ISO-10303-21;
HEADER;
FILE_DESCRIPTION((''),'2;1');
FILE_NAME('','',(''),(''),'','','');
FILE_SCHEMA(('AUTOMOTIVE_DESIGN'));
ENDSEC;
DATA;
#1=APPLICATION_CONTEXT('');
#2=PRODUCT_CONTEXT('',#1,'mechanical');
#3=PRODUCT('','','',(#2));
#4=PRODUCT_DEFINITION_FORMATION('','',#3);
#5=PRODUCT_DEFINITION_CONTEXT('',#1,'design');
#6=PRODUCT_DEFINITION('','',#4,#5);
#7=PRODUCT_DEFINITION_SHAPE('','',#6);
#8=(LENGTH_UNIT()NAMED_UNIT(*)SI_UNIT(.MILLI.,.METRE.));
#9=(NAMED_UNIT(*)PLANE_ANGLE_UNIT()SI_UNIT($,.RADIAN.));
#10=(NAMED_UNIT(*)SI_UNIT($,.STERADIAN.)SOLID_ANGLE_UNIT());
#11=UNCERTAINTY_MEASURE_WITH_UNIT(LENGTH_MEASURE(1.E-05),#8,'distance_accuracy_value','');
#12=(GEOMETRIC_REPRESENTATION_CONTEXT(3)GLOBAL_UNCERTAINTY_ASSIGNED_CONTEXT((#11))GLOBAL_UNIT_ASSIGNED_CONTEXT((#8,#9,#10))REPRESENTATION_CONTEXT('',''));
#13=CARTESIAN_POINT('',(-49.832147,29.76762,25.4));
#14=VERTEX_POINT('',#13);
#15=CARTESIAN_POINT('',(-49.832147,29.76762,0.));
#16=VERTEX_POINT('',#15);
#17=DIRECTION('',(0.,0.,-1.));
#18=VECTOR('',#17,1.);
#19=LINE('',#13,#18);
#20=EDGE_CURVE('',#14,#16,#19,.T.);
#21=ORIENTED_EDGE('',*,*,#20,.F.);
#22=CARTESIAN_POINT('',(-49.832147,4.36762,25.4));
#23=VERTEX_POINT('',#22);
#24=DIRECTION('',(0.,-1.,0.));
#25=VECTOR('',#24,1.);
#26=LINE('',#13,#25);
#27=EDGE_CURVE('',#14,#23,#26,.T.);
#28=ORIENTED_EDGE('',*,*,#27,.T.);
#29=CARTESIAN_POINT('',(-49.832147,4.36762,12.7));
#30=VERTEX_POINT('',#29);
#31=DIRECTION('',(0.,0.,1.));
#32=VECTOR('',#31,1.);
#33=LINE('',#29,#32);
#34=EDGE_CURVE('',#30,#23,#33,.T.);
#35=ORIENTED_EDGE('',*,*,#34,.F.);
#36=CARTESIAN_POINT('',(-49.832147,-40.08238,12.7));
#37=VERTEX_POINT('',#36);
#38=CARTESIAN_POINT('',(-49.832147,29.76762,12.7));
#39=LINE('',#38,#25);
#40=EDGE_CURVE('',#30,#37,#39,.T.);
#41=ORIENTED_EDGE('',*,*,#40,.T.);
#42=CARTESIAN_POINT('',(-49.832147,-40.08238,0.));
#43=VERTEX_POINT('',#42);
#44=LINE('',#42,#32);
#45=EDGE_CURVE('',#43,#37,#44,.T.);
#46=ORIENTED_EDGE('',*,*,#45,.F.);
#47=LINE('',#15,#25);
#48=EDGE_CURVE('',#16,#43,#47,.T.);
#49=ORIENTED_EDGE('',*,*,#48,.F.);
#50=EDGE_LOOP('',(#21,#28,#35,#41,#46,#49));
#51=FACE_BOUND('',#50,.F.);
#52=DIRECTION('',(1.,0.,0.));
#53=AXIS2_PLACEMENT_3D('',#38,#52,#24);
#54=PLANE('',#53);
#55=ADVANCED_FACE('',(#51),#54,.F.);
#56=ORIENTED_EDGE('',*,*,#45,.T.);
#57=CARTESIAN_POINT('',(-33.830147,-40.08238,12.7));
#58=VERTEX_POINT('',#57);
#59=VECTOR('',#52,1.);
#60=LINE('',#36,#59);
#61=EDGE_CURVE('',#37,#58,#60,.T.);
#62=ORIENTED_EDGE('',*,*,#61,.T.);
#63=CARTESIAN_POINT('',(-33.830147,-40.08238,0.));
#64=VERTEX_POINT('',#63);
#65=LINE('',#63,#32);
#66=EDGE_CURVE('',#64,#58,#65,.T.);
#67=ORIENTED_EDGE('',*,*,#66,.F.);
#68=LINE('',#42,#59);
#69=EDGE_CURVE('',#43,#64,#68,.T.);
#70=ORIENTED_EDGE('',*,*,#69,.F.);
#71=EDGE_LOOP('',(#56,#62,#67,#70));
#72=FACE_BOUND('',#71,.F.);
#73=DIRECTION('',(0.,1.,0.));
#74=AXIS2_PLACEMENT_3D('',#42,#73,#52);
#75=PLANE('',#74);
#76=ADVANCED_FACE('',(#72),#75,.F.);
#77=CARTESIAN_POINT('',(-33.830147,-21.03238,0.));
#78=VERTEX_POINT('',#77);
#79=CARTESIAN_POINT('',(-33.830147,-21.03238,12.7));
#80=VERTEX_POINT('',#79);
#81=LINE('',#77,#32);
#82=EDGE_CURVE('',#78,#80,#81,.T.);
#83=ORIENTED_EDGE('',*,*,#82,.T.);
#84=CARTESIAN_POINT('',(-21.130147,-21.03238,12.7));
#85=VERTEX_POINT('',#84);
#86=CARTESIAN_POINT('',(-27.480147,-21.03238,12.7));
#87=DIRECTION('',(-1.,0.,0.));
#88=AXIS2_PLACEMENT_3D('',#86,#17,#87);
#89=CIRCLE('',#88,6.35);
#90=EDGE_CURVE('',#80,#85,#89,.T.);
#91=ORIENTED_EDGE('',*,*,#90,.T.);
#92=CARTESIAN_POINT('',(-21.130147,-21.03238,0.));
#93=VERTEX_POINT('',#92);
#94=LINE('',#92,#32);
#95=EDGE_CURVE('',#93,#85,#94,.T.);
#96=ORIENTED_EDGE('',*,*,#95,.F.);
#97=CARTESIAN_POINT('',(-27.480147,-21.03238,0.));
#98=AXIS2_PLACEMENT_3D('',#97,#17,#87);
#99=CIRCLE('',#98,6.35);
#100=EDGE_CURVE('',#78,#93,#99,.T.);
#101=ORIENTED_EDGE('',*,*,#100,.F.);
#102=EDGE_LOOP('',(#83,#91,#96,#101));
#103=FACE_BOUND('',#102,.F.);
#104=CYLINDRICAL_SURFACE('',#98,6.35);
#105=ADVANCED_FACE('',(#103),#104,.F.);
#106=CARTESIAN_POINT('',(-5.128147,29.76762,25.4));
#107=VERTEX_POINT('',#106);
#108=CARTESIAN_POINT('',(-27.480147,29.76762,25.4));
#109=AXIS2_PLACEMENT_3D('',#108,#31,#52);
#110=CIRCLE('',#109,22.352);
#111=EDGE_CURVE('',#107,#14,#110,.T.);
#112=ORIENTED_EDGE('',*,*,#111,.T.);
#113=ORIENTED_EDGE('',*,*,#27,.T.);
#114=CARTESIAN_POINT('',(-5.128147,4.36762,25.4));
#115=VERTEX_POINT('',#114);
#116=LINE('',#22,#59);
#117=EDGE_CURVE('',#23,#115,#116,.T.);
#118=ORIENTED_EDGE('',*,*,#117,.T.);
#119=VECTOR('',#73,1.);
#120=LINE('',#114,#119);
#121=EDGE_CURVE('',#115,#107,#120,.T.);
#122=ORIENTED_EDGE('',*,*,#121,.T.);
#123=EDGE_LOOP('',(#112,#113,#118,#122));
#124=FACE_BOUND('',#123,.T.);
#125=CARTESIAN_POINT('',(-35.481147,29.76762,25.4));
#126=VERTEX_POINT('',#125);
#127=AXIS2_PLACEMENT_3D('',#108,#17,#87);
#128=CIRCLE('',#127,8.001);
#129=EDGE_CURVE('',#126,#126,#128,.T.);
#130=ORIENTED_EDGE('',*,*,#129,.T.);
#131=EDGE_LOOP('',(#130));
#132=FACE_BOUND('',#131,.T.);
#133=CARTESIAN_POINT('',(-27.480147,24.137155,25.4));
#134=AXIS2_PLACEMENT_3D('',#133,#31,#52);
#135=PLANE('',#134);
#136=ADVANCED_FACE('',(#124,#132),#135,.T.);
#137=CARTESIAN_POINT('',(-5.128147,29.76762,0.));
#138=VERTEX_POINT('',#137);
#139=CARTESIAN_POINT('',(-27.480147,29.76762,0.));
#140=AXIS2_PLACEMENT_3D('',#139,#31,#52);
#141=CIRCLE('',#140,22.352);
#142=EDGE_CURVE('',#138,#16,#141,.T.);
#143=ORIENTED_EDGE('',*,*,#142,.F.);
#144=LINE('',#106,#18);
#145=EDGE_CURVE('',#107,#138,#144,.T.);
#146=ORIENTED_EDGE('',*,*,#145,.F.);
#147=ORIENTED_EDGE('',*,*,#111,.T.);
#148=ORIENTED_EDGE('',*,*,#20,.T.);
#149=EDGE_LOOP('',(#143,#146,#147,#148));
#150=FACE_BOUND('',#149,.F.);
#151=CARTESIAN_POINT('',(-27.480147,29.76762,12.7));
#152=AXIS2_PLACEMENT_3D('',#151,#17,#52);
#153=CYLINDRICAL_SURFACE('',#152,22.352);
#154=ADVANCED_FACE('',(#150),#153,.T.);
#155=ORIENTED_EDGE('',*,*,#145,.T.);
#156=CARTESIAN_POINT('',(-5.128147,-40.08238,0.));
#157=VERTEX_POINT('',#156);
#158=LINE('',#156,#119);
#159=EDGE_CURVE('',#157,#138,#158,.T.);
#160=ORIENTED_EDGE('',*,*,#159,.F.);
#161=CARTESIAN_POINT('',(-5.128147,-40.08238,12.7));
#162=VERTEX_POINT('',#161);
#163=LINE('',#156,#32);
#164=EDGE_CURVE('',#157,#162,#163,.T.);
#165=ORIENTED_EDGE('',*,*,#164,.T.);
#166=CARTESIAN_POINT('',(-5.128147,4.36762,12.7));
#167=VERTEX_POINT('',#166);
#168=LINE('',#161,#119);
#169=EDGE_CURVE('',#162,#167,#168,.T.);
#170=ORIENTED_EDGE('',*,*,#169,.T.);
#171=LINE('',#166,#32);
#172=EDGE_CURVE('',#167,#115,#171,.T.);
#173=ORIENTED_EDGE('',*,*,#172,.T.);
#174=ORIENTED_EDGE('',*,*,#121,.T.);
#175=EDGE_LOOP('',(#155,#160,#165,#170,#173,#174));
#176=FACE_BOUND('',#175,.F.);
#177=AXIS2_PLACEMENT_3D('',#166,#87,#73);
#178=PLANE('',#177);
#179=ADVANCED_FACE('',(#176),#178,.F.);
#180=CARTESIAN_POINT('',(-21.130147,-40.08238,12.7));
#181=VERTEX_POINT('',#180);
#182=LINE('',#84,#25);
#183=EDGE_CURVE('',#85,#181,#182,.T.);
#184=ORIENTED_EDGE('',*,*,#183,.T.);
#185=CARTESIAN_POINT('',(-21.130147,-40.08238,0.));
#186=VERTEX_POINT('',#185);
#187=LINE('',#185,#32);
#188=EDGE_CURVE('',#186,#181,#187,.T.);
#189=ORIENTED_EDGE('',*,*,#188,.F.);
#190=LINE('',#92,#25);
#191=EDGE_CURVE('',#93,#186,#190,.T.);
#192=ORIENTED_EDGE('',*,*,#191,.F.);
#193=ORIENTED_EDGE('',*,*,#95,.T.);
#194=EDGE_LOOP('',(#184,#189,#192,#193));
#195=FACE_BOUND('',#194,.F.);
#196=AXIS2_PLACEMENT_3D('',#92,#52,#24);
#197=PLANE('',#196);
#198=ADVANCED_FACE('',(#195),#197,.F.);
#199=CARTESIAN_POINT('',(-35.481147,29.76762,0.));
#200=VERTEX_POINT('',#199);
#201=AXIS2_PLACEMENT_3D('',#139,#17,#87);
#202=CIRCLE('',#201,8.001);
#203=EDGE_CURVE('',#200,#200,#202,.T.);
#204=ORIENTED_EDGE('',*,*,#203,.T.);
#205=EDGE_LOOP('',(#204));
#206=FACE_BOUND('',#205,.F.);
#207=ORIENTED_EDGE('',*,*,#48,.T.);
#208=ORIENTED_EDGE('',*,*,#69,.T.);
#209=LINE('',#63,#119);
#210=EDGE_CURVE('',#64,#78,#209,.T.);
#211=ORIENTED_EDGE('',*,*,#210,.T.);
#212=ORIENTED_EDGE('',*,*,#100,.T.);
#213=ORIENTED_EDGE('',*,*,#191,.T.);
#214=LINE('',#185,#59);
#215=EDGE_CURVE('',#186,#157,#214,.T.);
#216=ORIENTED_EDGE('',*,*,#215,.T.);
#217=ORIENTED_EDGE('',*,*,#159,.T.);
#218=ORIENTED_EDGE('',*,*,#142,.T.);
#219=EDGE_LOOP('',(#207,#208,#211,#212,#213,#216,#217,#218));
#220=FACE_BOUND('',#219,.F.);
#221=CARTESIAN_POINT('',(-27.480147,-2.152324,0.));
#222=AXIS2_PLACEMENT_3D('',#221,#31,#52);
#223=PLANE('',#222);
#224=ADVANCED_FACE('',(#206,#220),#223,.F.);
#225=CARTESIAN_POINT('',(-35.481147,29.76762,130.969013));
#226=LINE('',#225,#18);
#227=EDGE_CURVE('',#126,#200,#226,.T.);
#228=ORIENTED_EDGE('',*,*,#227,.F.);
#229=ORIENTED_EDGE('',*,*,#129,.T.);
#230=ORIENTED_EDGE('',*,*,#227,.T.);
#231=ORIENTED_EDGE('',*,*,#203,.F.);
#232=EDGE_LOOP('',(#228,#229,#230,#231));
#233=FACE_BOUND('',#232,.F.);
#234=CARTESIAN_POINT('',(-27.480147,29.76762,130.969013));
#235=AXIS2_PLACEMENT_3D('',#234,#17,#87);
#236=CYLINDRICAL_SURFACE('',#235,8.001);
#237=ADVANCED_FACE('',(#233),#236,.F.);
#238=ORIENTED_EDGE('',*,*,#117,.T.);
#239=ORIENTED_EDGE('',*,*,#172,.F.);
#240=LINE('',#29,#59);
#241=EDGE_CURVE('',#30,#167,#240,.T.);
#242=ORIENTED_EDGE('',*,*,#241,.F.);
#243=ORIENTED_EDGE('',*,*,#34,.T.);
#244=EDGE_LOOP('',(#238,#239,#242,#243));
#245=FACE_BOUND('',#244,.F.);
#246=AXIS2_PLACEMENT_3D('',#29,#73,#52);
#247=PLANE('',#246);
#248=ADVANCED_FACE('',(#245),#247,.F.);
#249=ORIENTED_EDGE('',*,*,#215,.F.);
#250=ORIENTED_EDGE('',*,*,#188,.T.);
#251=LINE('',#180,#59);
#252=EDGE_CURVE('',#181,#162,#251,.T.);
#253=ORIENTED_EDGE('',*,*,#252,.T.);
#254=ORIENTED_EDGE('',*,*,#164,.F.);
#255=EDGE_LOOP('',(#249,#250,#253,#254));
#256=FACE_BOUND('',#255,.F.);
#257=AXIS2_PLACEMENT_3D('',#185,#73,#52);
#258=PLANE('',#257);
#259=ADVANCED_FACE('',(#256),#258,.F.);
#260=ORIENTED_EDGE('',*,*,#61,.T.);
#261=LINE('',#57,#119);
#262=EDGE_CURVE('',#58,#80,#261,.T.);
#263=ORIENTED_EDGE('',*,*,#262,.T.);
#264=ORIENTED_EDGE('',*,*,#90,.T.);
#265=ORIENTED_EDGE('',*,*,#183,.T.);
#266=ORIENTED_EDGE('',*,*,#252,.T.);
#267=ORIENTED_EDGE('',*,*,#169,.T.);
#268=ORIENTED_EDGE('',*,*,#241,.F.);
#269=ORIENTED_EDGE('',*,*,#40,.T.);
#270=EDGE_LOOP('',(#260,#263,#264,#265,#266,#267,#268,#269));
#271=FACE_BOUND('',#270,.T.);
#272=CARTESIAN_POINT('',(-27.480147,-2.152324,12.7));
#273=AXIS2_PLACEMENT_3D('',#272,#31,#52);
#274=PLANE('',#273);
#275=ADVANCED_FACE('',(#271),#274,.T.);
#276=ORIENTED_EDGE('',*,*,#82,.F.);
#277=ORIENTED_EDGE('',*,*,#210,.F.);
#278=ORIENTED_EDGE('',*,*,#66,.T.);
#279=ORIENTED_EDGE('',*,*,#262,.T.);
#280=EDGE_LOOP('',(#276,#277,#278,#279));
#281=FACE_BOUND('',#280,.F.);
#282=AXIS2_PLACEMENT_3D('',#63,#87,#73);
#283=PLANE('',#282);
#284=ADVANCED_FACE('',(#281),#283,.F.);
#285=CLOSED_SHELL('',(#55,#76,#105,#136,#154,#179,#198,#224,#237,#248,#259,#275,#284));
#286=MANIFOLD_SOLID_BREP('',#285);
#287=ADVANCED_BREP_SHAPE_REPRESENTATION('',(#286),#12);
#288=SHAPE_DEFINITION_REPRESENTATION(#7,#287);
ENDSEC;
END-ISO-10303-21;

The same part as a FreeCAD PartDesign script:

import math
import FreeCAD as App
import Part
import Sketcher
Q = App.Units.Quantity

doc = App.newDocument("Part")
body = doc.addObject("PartDesign::Body", "Body")

sketch1 = body.newObject("Sketcher::SketchObject", "Sketch")
sketch1.AttachmentSupport = (doc.getObject("XY_Plane"), [""])
sketch1.MapMode = "FlatFace"
sketch1.addGeometry(Part.LineSegment(App.Vector(-5.128147, -40.08238, 0), App.Vector(-5.128147, 29.76762, 0)), False)
sketch1.addGeometry(Part.ArcOfCircle(Part.Circle(App.Vector(-27.480147, 29.76762, 0), App.Vector(0, 0, 1), 22.352), math.radians(0), math.radians(180)), False)
sketch1.addGeometry(Part.LineSegment(App.Vector(-49.832147, 29.76762, 0), App.Vector(-49.832147, -40.08238, 0)), False)
sketch1.addGeometry(Part.LineSegment(App.Vector(-49.832147, -40.08238, 0), App.Vector(-33.830147, -40.08238, 0)), False)
sketch1.addGeometry(Part.LineSegment(App.Vector(-33.830147, -40.08238, 0), App.Vector(-33.830147, -21.03238, 0)), False)
sketch1.addGeometry(Part.ArcOfCircle(Part.Circle(App.Vector(-27.480147, -21.03238, 0), App.Vector(0, 0, 1), 6.35), math.radians(0), math.radians(180)), False)
sketch1.addGeometry(Part.LineSegment(App.Vector(-21.130147, -21.03238, 0), App.Vector(-21.130147, -40.08238, 0)), False)
sketch1.addGeometry(Part.LineSegment(App.Vector(-21.130147, -40.08238, 0), App.Vector(-5.128147, -40.08238, 0)), False)
sketch1.addConstraint(Sketcher.Constraint("Tangent", 0, 2, 1, 1))
sketch1.addConstraint(Sketcher.Constraint("Tangent", 1, 2, 2, 1))
sketch1.addConstraint(Sketcher.Constraint("Coincident", 2, 2, 3, 1))
sketch1.addConstraint(Sketcher.Constraint("Coincident", 3, 2, 4, 1))
sketch1.addConstraint(Sketcher.Constraint("Tangent", 4, 2, 5, 2))
sketch1.addConstraint(Sketcher.Constraint("Tangent", 5, 1, 6, 1))
sketch1.addConstraint(Sketcher.Constraint("Coincident", 6, 2, 7, 1))
sketch1.addConstraint(Sketcher.Constraint("Coincident", 7, 2, 0, 1))
sketch1.addConstraint(Sketcher.Constraint("Vertical", 0))
sketch1.addConstraint(Sketcher.Constraint("Vertical", 2))
sketch1.addConstraint(Sketcher.Constraint("Horizontal", 3))
sketch1.addConstraint(Sketcher.Constraint("Vertical", 4))
sketch1.addConstraint(Sketcher.Constraint("Vertical", 6))
sketch1.addConstraint(Sketcher.Constraint("Horizontal", 7))
sketch1.addConstraint(Sketcher.Constraint("Horizontal", 3, 2, 6, 2))
sketch1.addConstraint(Sketcher.Constraint("Vertical", 1, 3, 5, 3))
sketch1.addConstraint(Sketcher.Constraint("Radius", 1, Q("0.88 in")))
sketch1.addConstraint(Sketcher.Constraint("Radius", 5, Q("0.25 in")))
sketch1.addConstraint(Sketcher.Constraint("DistanceY", 5, 3, 1, 3, Q("2 in")))
sketch1.addConstraint(Sketcher.Constraint("DistanceY", 0, 1, 0, 2, Q("2.75 in")))
sketch1.addConstraint(Sketcher.Constraint("DistanceY", -1, 1, 1, 3, 29.76762))
sketch1.addConstraint(Sketcher.Constraint("DistanceX", 1, 3, -1, 1, 27.480147))
pad1 = body.newObject("PartDesign::Pad", "Pad")
pad1.Profile = sketch1
pad1.Length = Q("0.5 in")

sketch2 = body.newObject("Sketcher::SketchObject", "Sketch001")
sketch2.AttachmentSupport = (doc.getObject("XY_Plane"), [""])
sketch2.MapMode = "FlatFace"
sketch2.AttachmentOffset = App.Placement(App.Vector(0, 0, 0.5 * 25.4), App.Rotation())
sketch2.addGeometry(Part.LineSegment(App.Vector(-49.832147, 29.76762, 0), App.Vector(-49.832147, 4.36762, 0)), False)
sketch2.addGeometry(Part.LineSegment(App.Vector(-49.832147, 4.36762, 0), App.Vector(-5.128147, 4.36762, 0)), False)
sketch2.addGeometry(Part.LineSegment(App.Vector(-5.128147, 4.36762, 0), App.Vector(-5.128147, 29.76762, 0)), False)
sketch2.addGeometry(Part.ArcOfCircle(Part.Circle(App.Vector(-27.480147, 29.76762, 0), App.Vector(0, 0, 1), 22.352), math.radians(0), math.radians(180)), False)
sketch2.addConstraint(Sketcher.Constraint("Coincident", 0, 2, 1, 1))
sketch2.addConstraint(Sketcher.Constraint("Coincident", 1, 2, 2, 1))
sketch2.addConstraint(Sketcher.Constraint("Tangent", 2, 2, 3, 1))
sketch2.addConstraint(Sketcher.Constraint("Tangent", 3, 2, 0, 1))
sketch2.addConstraint(Sketcher.Constraint("Vertical", 0))
sketch2.addConstraint(Sketcher.Constraint("Horizontal", 1))
sketch2.addConstraint(Sketcher.Constraint("Vertical", 2))
sketch2.addConstraint(Sketcher.Constraint("DistanceY", 0, 2, 0, 1, Q("1 in")))
sketch2.addConstraint(Sketcher.Constraint("Radius", 3, Q("0.88 in")))
sketch2.addConstraint(Sketcher.Constraint("DistanceY", -1, 1, 3, 3, 29.76762))
sketch2.addConstraint(Sketcher.Constraint("DistanceX", 3, 3, -1, 1, 27.480147))
pad2 = body.newObject("PartDesign::Pad", "Pad001")
pad2.Profile = sketch2
pad2.Length = Q("0.5 in")

sketch3 = body.newObject("Sketcher::SketchObject", "Sketch002")
sketch3.AttachmentSupport = (doc.getObject("XY_Plane"), [""])
sketch3.MapMode = "FlatFace"
sketch3.AttachmentOffset = App.Placement(App.Vector(0, 0, 1 * 25.4), App.Rotation())
sketch3.addGeometry(Part.Circle(App.Vector(-27.480147, 29.76762, 0), App.Vector(0, 0, 1), 8.001), False)
sketch3.addConstraint(Sketcher.Constraint("Diameter", 0, Q("0.63 in")))
sketch3.addConstraint(Sketcher.Constraint("DistanceY", -1, 1, 0, 3, 29.76762))
sketch3.addConstraint(Sketcher.Constraint("DistanceX", 0, 3, -1, 1, 27.480147))
doc.recompute()
hole = body.newObject("PartDesign::Hole", "Hole")
hole.Profile = sketch3
hole.ThreadType = "None"
hole.Diameter = Q("0.63 in")
hole.DepthType = "ThroughAll"

doc.recompute()
